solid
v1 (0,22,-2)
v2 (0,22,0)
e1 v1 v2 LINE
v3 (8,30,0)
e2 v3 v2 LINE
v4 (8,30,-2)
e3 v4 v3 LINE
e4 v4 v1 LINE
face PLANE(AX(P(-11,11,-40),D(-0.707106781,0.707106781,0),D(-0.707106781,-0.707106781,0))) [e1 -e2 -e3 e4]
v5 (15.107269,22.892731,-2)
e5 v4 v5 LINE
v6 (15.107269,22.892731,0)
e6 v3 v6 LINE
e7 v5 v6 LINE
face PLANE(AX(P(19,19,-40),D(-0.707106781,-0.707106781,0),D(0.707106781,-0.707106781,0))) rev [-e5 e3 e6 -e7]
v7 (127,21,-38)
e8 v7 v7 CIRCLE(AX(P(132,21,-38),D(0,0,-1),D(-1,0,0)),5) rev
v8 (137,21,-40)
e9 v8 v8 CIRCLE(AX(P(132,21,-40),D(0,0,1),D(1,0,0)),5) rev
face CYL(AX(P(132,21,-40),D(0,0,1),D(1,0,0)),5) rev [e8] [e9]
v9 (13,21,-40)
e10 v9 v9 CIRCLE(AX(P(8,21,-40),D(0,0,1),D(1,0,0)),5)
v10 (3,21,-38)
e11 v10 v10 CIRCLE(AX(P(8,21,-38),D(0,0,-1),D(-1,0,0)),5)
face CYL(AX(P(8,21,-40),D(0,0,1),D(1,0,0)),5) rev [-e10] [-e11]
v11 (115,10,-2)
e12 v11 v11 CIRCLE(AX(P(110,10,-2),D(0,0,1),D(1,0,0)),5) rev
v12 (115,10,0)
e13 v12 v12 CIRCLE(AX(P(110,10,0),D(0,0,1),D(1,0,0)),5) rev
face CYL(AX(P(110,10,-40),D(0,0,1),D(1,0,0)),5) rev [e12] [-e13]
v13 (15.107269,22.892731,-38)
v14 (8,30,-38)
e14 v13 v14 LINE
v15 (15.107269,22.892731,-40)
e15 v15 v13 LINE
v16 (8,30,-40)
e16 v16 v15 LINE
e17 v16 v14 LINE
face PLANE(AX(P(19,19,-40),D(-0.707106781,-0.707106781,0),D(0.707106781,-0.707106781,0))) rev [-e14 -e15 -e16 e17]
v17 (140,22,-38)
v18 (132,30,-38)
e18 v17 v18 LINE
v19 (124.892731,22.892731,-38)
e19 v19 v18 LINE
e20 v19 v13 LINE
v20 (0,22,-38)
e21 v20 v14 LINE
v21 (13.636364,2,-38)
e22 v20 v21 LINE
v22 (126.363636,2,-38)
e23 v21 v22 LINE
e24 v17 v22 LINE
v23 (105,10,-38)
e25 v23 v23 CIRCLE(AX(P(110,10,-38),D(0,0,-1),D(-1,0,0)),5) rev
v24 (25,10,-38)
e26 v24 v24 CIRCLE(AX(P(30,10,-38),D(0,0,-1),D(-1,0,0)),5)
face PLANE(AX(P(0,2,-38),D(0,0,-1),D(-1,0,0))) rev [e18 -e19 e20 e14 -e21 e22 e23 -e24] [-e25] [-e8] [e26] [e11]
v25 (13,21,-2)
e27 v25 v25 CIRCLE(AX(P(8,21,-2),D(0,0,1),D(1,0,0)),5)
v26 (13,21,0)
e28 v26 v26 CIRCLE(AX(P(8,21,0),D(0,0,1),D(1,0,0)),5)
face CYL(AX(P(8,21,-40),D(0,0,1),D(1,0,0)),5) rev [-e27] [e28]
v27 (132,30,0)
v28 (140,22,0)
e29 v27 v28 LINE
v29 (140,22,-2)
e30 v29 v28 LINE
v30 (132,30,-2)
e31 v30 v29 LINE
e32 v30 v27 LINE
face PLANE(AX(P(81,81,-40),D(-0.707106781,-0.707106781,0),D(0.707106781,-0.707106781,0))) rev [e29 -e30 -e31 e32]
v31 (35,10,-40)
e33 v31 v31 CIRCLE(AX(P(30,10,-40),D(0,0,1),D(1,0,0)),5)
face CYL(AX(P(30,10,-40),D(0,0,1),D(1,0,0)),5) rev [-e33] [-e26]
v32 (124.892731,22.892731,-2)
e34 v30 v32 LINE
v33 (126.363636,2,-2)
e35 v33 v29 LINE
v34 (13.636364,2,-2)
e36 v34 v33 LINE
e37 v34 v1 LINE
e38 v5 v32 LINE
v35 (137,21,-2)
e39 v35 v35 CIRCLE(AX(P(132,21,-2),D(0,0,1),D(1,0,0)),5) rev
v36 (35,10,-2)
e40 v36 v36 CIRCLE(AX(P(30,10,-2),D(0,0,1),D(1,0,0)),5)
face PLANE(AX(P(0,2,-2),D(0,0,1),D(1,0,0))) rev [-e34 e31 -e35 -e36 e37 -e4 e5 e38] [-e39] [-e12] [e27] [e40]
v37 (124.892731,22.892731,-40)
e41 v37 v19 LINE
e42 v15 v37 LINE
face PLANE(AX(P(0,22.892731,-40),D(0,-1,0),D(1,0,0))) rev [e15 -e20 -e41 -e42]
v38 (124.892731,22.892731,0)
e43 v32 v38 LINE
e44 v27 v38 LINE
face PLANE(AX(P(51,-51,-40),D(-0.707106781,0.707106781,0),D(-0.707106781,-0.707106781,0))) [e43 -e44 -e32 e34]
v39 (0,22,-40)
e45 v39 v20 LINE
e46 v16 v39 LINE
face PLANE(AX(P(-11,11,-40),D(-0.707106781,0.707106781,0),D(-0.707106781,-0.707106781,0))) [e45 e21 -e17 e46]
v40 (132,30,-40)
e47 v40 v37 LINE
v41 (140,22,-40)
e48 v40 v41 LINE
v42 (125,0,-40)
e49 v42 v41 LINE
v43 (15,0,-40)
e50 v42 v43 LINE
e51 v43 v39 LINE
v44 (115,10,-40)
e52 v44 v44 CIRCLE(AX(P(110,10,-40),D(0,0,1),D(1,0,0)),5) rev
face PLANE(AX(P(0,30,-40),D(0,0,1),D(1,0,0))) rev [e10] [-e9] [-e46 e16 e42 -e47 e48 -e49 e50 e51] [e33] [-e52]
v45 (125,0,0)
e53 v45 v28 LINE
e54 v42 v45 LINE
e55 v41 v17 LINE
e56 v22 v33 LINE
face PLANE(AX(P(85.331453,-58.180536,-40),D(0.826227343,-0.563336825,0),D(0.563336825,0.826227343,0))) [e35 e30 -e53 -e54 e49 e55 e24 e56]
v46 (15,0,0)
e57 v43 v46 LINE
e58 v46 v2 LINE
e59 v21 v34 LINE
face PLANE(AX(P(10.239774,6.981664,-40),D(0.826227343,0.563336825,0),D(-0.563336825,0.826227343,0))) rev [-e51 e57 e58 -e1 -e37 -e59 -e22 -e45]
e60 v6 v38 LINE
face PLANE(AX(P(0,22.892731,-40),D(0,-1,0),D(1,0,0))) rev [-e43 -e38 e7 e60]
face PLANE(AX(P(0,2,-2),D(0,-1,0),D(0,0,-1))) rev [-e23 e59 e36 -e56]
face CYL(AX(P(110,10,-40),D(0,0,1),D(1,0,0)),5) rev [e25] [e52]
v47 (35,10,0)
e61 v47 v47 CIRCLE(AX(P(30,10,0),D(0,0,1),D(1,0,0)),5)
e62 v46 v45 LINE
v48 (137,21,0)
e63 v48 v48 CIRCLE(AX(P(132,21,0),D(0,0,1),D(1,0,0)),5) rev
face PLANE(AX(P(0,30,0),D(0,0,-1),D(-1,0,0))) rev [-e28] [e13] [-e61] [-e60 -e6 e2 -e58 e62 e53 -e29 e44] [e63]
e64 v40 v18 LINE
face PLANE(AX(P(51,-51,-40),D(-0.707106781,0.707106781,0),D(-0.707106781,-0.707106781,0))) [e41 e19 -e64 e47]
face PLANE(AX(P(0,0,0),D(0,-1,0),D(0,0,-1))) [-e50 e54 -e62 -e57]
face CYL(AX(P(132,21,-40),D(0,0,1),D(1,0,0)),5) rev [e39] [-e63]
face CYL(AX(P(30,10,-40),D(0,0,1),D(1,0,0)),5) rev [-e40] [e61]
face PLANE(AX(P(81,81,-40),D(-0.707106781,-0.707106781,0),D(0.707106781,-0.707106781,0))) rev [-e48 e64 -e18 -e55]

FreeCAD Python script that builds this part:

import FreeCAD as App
import Part
import Sketcher
from FreeCAD import Vector

doc = App.newDocument("Part")
body = doc.addObject("PartDesign::Body", "Body")

# Sketch on XZ plane
sketch1 = body.newObject("Sketcher::SketchObject", "Sketch")
sketch1.AttachmentSupport = (doc.getObject("XZ_Plane"), [""])
sketch1.MapMode = "FlatFace"
sketch1.addGeometry([
    Part.LineSegment(Vector(0, -40, 0), Vector(0, 0, 0)),
    Part.LineSegment(Vector(0, 0, 0), Vector(140, 0, 0)),
    Part.LineSegment(Vector(140, 0, 0), Vector(140, -40, 0)),
    Part.LineSegment(Vector(140, -40, 0), Vector(0, -40, 0)),
], False)
sketch1.addConstraint([
    Sketcher.Constraint("Coincident", 0, 2, 1, 1),
    Sketcher.Constraint("Coincident", 1, 2, 2, 1),
    Sketcher.Constraint("Coincident", 2, 2, 3, 1),
    Sketcher.Constraint("Coincident", 3, 2, 0, 1),
    Sketcher.Constraint("Vertical", 0),
    Sketcher.Constraint("Horizontal", 1),
    Sketcher.Constraint("Vertical", 2),
    Sketcher.Constraint("Horizontal", 3),
    Sketcher.Constraint("Coincident", 0, 2, -1, 1),
    Sketcher.Constraint("DistanceX", 1, 1, 1, 2, 140.0),
    Sketcher.Constraint("DistanceY", 0, 1, 0, 2, 40.0),
])
pad1 = body.newObject("PartDesign::Pad", "Pad")
pad1.Profile = sketch1
pad1.Length = 30
pad1.Reversed = True

# Sketch on YZ plane
sketch2 = body.newObject("Sketcher::SketchObject", "Sketch001")
sketch2.AttachmentSupport = (doc.getObject("YZ_Plane"), [""])
sketch2.MapMode = "FlatFace"
sketch2.AttachmentOffset = App.Placement(Vector(0, 0, 140), App.Rotation())
sketch2.addGeometry([
    Part.LineSegment(Vector(30, -2, 0), Vector(2, -2, 0)),
    Part.LineSegment(Vector(2, -2, 0), Vector(2, -38, 0)),
    Part.LineSegment(Vector(2, -38, 0), Vector(30, -38, 0)),
    Part.LineSegment(Vector(30, -38, 0), Vector(30, -2, 0)),
], False)
sketch2.addConstraint([
    Sketcher.Constraint("Coincident", 0, 2, 1, 1),
    Sketcher.Constraint("Coincident", 1, 2, 2, 1),
    Sketcher.Constraint("Coincident", 2, 2, 3, 1),
    Sketcher.Constraint("Coincident", 3, 2, 0, 1),
    Sketcher.Constraint("Horizontal", 0),
    Sketcher.Constraint("Vertical", 1),
    Sketcher.Constraint("Horizontal", 2),
    Sketcher.Constraint("Vertical", 3),
    Sketcher.Constraint("DistanceX", 0, 2, 0, 1, 28.0),
    Sketcher.Constraint("DistanceY", 1, 2, 1, 1, 36.0),
    Sketcher.Constraint("DistanceX", -1, 1, 0, 2, 2.0),
    Sketcher.Constraint("DistanceY", 0, 2, -1, 1, 2.0),
])
pocket1 = body.newObject("PartDesign::Pocket", "Pocket")
pocket1.Profile = sketch2
pocket1.Type = "ThroughAll"

# Sketch on XY plane
sketch3 = body.newObject("Sketcher::SketchObject", "Sketch002")
sketch3.AttachmentSupport = (doc.getObject("XY_Plane"), [""])
sketch3.MapMode = "FlatFace"
sketch3.addGeometry([
    Part.LineSegment(Vector(0, 0, 0), Vector(15, 0, 0)),  # 0
    Part.LineSegment(Vector(15, 0, 0), Vector(0, 22, 0)),  # 1
    Part.LineSegment(Vector(0, 22, 0), Vector(0, 0, 0)),  # 2
    Part.LineSegment(Vector(140, 22, 0), Vector(125, 0, 0)),  # 3
    Part.LineSegment(Vector(125, 0, 0), Vector(140, 0, 0)),  # 4
    Part.LineSegment(Vector(140, 0, 0), Vector(140, 22, 0)),  # 5
], False)
sketch3.addConstraint([
    Sketcher.Constraint("Coincident", 0, 2, 1, 1),
    Sketcher.Constraint("Coincident", 1, 2, 2, 1),
    Sketcher.Constraint("Coincident", 2, 2, 0, 1),
    Sketcher.Constraint("Coincident", 3, 2, 4, 1),
    Sketcher.Constraint("Coincident", 4, 2, 5, 1),
    Sketcher.Constraint("Coincident", 5, 2, 3, 1),
    Sketcher.Constraint("Horizontal", 0),
    Sketcher.Constraint("Vertical", 2),
    Sketcher.Constraint("Horizontal", 4),
    Sketcher.Constraint("Vertical", 5),
    Sketcher.Constraint("Coincident", 2, 2, -1, 1),
    Sketcher.Constraint("PointOnObject", 3, 2, -1),
    Sketcher.Constraint("Horizontal", 1, 2, 5, 2),
    Sketcher.Constraint("Equal", 0, 4),
    Sketcher.Constraint("DistanceX", 0, 1, 0, 2, 15.0),
    Sketcher.Constraint("DistanceY", 2, 2, 2, 1, 22.0),
    Sketcher.Constraint("DistanceX", -1, 1, 3, 2, 125.0),
])
pocket2 = body.newObject("PartDesign::Pocket", "Pocket001")
pocket2.Profile = sketch3
pocket2.Type = "ThroughAll"

# Sketch on XY plane
sketch4 = body.newObject("Sketcher::SketchObject", "Sketch003")
sketch4.AttachmentSupport = (doc.getObject("XY_Plane"), [""])
sketch4.MapMode = "FlatFace"
sketch4.addGeometry([
    Part.LineSegment(Vector(0, 30, 0), Vector(0, 22, 0)),  # 0
    Part.LineSegment(Vector(0, 22, 0), Vector(8, 30, 0)),  # 1
    Part.LineSegment(Vector(8, 30, 0), Vector(0, 30, 0)),  # 2
    Part.LineSegment(Vector(140, 30, 0), Vector(132, 30, 0)),  # 3
    Part.LineSegment(Vector(132, 30, 0), Vector(140, 22, 0)),  # 4
    Part.LineSegment(Vector(140, 22, 0), Vector(140, 30, 0)),  # 5
], False)
sketch4.addConstraint([
    Sketcher.Constraint("Coincident", 0, 2, 1, 1),
    Sketcher.Constraint("Coincident", 1, 2, 2, 1),
    Sketcher.Constraint("Coincident", 2, 2, 0, 1),
    Sketcher.Constraint("Coincident", 3, 2, 4, 1),
    Sketcher.Constraint("Coincident", 4, 2, 5, 1),
    Sketcher.Constraint("Coincident", 5, 2, 3, 1),
    Sketcher.Constraint("Vertical", 0),
    Sketcher.Constraint("Horizontal", 2),
    Sketcher.Constraint("Horizontal", 3),
    Sketcher.Constraint("Vertical", 5),
    Sketcher.Constraint("PointOnObject", 0, 2, -2),
    Sketcher.Constraint("Perpendicular", 1, 4),
    Sketcher.Constraint("Horizontal", 2, 2, 3, 2),
    Sketcher.Constraint("Horizontal", 0, 2, 4, 2),
    Sketcher.Constraint("Equal", 2, 3),
    Sketcher.Constraint("DistanceX", 2, 2, 2, 1, 8.0),
    Sketcher.Constraint("DistanceY", -1, 1, 0, 2, 22.0),
    Sketcher.Constraint("DistanceX", -1, 1, 3, 2, 132.0),
])
pocket3 = body.newObject("PartDesign::Pocket", "Pocket002")
pocket3.Profile = sketch4
pocket3.Type = "ThroughAll"

# Sketch on XY plane
sketch5 = body.newObject("Sketcher::SketchObject", "Sketch004")
sketch5.AttachmentSupport = (doc.getObject("XY_Plane"), [""])
sketch5.MapMode = "FlatFace"
sketch5.addGeometry([
    Part.LineSegment(Vector(8, 30, 0), Vector(15, 23, 0)),  # 0
    Part.LineSegment(Vector(15, 23, 0), Vector(125, 23, 0)),  # 1
    Part.LineSegment(Vector(125, 23, 0), Vector(132, 30, 0)),  # 2
    Part.LineSegment(Vector(132, 30, 0), Vector(8, 30, 0)),  # 3
    Part.Circle(Vector(132, 21, 0), Vector(0, 0, 1), 5),  # 4
    Part.Circle(Vector(110, 10, 0), Vector(0, 0, 1), 5),  # 5
    Part.Circle(Vector(30, 10, 0), Vector(0, 0, 1), 5),  # 6
    Part.Circle(Vector(8, 21, 0), Vector(0, 0, 1), 5),  # 7
], False)
sketch5.addConstraint([
    Sketcher.Constraint("Coincident", 0, 2, 1, 1),
    Sketcher.Constraint("Coincident", 1, 2, 2, 1),
    Sketcher.Constraint("Coincident", 2, 2, 3, 1),
    Sketcher.Constraint("Coincident", 3, 2, 0, 1),
    Sketcher.Constraint("Horizontal", 1),
    Sketcher.Constraint("Horizontal", 3),
    Sketcher.Constraint("Equal", 4, 5),
    Sketcher.Constraint("Equal", 5, 6),
    Sketcher.Constraint("Equal", 6, 7),
    Sketcher.Constraint("Perpendicular", 0, 2),
    Sketcher.Constraint("Horizontal", 5, 3, 6, 3),
    Sketcher.Constraint("Horizontal", 4, 3, 7, 3),
    Sketcher.Constraint("Vertical", 4, 3, 2, 2),
    Sketcher.Constraint("Vertical", 7, 3, 3, 2),
    Sketcher.Constraint("Equal", 0, 2),
    Sketcher.Constraint("Diameter", 4, 10.0),
    Sketcher.Constraint("DistanceX", 3, 2, 3, 1, 124.0),
    Sketcher.Constraint("DistanceX", -1, 1, 4, 3, 132.0),
    Sketcher.Constraint("DistanceY", -1, 1, 4, 3, 21.0),
    Sketcher.Constraint("DistanceX", -1, 1, 5, 3, 110.0),
    Sketcher.Constraint("DistanceY", -1, 1, 5, 3, 10.0),
    Sketcher.Constraint("DistanceX", -1, 1, 6, 3, 30.0),
    Sketcher.Constraint("DistanceY", -1, 1, 2, 2, 30.0),
    Sketcher.Constraint("DistanceX", 1, 1, 1, 2, 109.785463),
])
pocket4 = body.newObject("PartDesign::Pocket", "Pocket003")
pocket4.Profile = sketch5
pocket4.Type = "ThroughAll"

doc.recompute()
